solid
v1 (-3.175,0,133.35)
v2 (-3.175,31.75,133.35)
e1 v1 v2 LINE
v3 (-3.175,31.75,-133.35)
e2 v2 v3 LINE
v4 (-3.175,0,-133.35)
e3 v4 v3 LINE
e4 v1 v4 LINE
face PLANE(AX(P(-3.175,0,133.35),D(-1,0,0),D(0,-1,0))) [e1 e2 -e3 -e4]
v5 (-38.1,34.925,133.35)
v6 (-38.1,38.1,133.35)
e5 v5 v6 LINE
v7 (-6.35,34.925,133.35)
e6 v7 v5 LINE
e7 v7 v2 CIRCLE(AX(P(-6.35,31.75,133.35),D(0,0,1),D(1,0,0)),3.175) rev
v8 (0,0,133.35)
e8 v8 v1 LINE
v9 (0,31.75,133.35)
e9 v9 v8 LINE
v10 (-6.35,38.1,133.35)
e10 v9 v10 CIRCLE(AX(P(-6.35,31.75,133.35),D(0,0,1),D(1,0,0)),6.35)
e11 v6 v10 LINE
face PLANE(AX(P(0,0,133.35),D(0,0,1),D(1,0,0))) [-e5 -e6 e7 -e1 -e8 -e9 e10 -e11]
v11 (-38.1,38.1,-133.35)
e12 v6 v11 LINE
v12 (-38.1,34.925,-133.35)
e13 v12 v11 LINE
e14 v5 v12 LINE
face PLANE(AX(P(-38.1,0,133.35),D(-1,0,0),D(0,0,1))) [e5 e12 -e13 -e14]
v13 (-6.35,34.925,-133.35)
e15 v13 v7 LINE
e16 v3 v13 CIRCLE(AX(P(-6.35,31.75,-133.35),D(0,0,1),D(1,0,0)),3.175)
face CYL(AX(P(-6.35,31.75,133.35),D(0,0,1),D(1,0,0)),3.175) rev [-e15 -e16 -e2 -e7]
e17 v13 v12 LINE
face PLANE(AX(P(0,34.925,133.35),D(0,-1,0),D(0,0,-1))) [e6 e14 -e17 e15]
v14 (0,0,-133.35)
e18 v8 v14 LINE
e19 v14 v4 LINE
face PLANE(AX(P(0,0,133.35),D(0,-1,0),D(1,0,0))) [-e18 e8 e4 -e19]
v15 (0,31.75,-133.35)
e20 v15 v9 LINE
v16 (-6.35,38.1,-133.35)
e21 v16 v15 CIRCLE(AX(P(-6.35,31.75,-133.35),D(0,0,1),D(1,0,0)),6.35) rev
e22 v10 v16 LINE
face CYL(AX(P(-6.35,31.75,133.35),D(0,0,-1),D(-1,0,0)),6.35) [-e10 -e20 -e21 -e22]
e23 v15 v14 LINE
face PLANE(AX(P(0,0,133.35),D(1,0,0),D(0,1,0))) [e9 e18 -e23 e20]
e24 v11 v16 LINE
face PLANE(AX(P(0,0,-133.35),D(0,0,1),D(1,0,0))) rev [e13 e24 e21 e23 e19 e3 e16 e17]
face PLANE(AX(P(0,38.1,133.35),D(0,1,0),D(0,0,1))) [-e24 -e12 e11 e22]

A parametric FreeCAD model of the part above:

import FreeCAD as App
import Part
import Sketcher
Q = App.Units.Quantity


def edges_at(feature, points):
    """Names of the edges that pass closest to the given points."""
    edges = feature.Shape.Edges
    near = lambda p: min(range(len(edges)), key=lambda i: edges[i].distToShape(Part.Vertex(*p))[0])
    return sorted({f"Edge{near(p) + 1}" for p in points})


def add_polygon(sketch, points):
    """Adds a closed chain of lines whose ends are joined by coincident constraints."""
    first, n = sketch.GeometryCount, len(points)
    for a, b in zip(points, points[1:] + points[:1]):
        sketch.addGeometry(Part.LineSegment(App.Vector(*a, 0), App.Vector(*b, 0)), False)
    for i in range(n):
        sketch.addConstraint(Sketcher.Constraint("Coincident", first + i, 2, first + (i + 1) % n, 1))

doc = App.newDocument("Part")
body = doc.addObject("PartDesign::Body", "Body")

# Sketch on XY plane
sketch1 = doc.addObject("Sketcher::SketchObject", "Sketch")
body.addObject(sketch1)
sketch1.AttachmentSupport = (doc.XY_Plane, [""])
sketch1.MapMode = "FlatFace"
add_polygon(sketch1, [(0, 38.1), (-38.1, 38.1), (-38.1, 34.925), (-3.175, 34.925), (-3.175, 0), (0, 0)])  # lines 0-5
sketch1.addConstraint(Sketcher.Constraint("Horizontal", 0))
sketch1.addConstraint(Sketcher.Constraint("Vertical", 1))
sketch1.addConstraint(Sketcher.Constraint("Horizontal", 2))
sketch1.addConstraint(Sketcher.Constraint("Vertical", 3))
sketch1.addConstraint(Sketcher.Constraint("Horizontal", 4))
sketch1.addConstraint(Sketcher.Constraint("Vertical", 5))
sketch1.addConstraint(Sketcher.Constraint("Coincident", 4, 2, -1, 1))
sketch1.addConstraint(Sketcher.Constraint("Equal", 4, 1))
sketch1.addConstraint(Sketcher.Constraint("Equal", 2, 3))
sketch1.addConstraint(Sketcher.Constraint("DistanceX", 0, 2, 0, 1, Q("1.5 in")))
sketch1.addConstraint(Sketcher.Constraint("DistanceX", 2, 1, 2, 2, Q("1.375 in")))
pad1 = doc.addObject("PartDesign::Pad", "Pad")
body.addObject(pad1)
pad1.Profile = sketch1
pad1.Length = Q("10.5 in")
pad1.Midplane = True
doc.recompute()

fillet = doc.addObject("PartDesign::Fillet", "Fillet")
body.addObject(fillet)
fillet.Base = (pad1, edges_at(pad1, [(-3.175, 34.925, 0)]))
fillet.Radius = Q("0.125 in")
doc.recompute()

fillet2 = doc.addObject("PartDesign::Fillet", "Fillet001")
body.addObject(fillet2)
fillet2.Base = (fillet, edges_at(fillet, [(0, 38.1, 0)]))
fillet2.Radius = Q("0.25 in")

doc.recompute()
